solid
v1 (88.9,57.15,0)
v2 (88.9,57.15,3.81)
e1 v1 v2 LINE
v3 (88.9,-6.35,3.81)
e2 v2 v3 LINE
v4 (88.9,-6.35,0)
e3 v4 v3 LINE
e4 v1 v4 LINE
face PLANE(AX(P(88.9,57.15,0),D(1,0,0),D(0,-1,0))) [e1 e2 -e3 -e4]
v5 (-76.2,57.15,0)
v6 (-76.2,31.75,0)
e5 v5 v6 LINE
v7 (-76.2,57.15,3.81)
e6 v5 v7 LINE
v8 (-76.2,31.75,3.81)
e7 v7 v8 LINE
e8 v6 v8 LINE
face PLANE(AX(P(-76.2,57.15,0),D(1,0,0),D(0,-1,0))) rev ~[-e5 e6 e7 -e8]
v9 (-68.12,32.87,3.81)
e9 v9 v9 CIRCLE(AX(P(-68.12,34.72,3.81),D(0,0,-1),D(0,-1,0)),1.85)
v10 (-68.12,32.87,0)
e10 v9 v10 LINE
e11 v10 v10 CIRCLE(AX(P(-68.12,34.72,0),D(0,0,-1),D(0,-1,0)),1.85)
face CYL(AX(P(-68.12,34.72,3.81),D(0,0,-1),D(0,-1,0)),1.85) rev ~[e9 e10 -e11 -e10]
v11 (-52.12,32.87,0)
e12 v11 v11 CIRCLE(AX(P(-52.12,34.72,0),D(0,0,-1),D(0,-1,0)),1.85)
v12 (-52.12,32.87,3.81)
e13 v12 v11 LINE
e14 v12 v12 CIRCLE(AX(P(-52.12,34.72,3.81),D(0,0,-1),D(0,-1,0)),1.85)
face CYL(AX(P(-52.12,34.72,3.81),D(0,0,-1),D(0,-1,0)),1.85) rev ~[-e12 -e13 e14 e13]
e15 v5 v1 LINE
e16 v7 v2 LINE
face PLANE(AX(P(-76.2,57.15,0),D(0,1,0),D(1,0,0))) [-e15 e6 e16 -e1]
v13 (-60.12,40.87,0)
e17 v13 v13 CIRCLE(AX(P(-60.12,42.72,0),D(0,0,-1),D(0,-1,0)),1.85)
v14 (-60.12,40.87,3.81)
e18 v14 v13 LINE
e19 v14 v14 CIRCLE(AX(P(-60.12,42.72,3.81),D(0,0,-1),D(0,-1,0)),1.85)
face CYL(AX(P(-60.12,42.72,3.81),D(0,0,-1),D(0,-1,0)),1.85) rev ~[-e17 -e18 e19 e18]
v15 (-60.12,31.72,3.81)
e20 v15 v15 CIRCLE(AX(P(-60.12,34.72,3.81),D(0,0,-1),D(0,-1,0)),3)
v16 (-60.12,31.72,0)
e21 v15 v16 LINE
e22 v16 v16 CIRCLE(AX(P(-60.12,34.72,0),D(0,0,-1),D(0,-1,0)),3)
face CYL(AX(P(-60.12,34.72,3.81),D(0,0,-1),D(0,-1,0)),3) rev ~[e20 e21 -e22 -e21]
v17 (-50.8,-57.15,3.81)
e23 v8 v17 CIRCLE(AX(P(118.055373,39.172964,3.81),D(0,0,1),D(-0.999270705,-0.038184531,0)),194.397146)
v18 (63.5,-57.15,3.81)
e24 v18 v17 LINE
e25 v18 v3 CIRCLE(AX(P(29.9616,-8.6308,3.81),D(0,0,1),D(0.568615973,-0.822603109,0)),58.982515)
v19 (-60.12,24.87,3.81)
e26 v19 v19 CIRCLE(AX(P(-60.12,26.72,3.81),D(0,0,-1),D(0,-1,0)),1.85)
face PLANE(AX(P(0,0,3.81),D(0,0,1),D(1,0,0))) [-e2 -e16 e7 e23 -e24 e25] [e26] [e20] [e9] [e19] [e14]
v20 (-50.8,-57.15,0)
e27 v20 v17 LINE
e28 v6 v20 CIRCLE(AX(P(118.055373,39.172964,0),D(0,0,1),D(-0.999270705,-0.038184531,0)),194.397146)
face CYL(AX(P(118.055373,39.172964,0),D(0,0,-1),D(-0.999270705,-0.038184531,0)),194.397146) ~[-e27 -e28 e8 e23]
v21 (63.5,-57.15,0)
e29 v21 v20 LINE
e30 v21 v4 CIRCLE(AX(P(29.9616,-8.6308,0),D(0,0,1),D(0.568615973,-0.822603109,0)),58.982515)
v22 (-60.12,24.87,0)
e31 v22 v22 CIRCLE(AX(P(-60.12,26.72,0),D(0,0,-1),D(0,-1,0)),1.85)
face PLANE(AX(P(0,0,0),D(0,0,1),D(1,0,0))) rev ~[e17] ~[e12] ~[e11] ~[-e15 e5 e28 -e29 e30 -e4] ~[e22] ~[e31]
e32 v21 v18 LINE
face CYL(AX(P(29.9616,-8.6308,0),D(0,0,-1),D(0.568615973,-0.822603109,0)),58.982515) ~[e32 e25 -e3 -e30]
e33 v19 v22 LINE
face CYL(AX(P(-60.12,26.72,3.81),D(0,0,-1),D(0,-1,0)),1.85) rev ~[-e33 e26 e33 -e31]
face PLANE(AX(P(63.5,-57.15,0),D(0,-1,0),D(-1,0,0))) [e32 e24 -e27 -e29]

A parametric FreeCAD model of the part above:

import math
import FreeCAD as App
import Part
import Sketcher

V = App.Vector
Q = App.Units.Quantity

doc = App.newDocument("Part")
params = doc.addObject("Spreadsheet::Sheet", "Params")
for row, (alias, value) in enumerate([
    ("sketch1_height", "1 in"),
    ("sketch1_width", "6.5 in"),
    ("sketch1_width2", "4.5 in"),
    ("pad1_length", "0.15 in"),
    ("hole_diameter", "3.7 mm"),
    ("hole2_diameter", "6 mm"),
], start=1):
    params.set(f"A{row}", alias)
    params.set(f"B{row}", "=" + value)
    params.setAlias(f"B{row}", alias)

body = doc.addObject("PartDesign::Body", "Body")

sketch1 = doc.addObject("Sketcher::SketchObject", "Sketch")
body.addObject(sketch1)
sketch1.AttachmentSupport = (doc.XY_Plane, [""])
sketch1.MapMode = "FlatFace"
sketch1.addGeometry([
    Part.LineSegment(V(88.9, 57.15, 0), V(-76.2, 57.15, 0)),
    Part.LineSegment(V(-76.2, 57.15, 0), V(-76.2, 31.75, 0)),
    Part.ArcOfCircle(Part.Circle(V(118.0556, 39.173, 0), V(0, 0, 1), 194.397374), math.radians(-177.811647), math.radians(-150.297576)),
    Part.LineSegment(V(-50.8, -57.15, 0), V(63.5, -57.15, 0)),
    Part.ArcOfCircle(Part.Circle(V(29.9616, -8.6308, 0), V(0, 0, 1), 58.982515), math.radians(-55.34623), math.radians(2.216128)),
    Part.LineSegment(V(88.9, -6.35, 0), V(88.9, 57.15, 0)),
], False)
sketch1.addConstraint([
    Sketcher.Constraint("Coincident", 0, 2, 1, 1),
    Sketcher.Constraint("Coincident", 1, 2, 2, 1),
    Sketcher.Constraint("Coincident", 2, 2, 3, 1),
    Sketcher.Constraint("Coincident", 3, 2, 4, 1),
    Sketcher.Constraint("Coincident", 4, 2, 5, 1),
    Sketcher.Constraint("Coincident", 5, 2, 0, 1),
    Sketcher.Constraint("Horizontal", 0),
    Sketcher.Constraint("Vertical", 1),
    Sketcher.Constraint("Horizontal", 3),
    Sketcher.Constraint("Vertical", 5),
    Sketcher.Constraint("DistanceY", 1, 2, 1, 1, Q("1 in")),
    Sketcher.Constraint("DistanceX", 0, 2, 0, 1, Q("6.5 in")),
    Sketcher.Constraint("DistanceX", 3, 1, 3, 2, Q("4.5 in")),
    Sketcher.Constraint("DistanceX", 2, 2, -1, 1, Q("2 in")),
    Sketcher.Constraint("DistanceX", 1, 2, 2, 2, Q("1 in")),
    Sketcher.Constraint("DistanceY", 3, 2, 4, 2, Q("2 in")),
    Sketcher.Constraint("DistanceY", 2, 2, 0, 2, Q("4.5 in")),
    Sketcher.Constraint("DistanceY", -1, 1, 0, 2, Q("2.25 in")),
    Sketcher.Constraint("Radius", 2, Q("194.3974 mm")),
    Sketcher.Constraint("Radius", 4, Q("58.9825 mm")),
])
sketch1.setExpression("Constraints[10]", "Params.sketch1_height")
sketch1.setExpression("Constraints[11]", "Params.sketch1_width")
sketch1.setExpression("Constraints[12]", "Params.sketch1_width2")
pad1 = doc.addObject("PartDesign::Pad", "Pad")
body.addObject(pad1)
pad1.Profile = sketch1
pad1.setExpression("Length", "Params.pad1_length")

sketch2 = doc.addObject("Sketcher::SketchObject", "Sketch001")
body.addObject(sketch2)
sketch2.AttachmentSupport = (doc.XY_Plane, [""])
sketch2.MapMode = "FlatFace"
sketch2.AttachmentOffset = App.Placement(V(0, 0, 0.15 * 25.4), App.Rotation())
sketch2.addGeometry([
    Part.Circle(V(-60.12, 42.72, 0), V(0, 0, 1), 1.85),
    Part.Circle(V(-68.12, 34.72, 0), V(0, 0, 1), 1.85),
    Part.Circle(V(-60.12, 26.72, 0), V(0, 0, 1), 1.85),
    Part.Circle(V(-52.12, 34.72, 0), V(0, 0, 1), 1.85),
], False)
sketch2.addConstraint([
    Sketcher.Constraint("Equal", 0, 1),
    Sketcher.Constraint("Equal", 1, 2),
    Sketcher.Constraint("Equal", 2, 3),
    Sketcher.Constraint("Horizontal", 1, 3, 3, 3),
    Sketcher.Constraint("Vertical", 0, 3, 2, 3),
    Sketcher.Constraint("Diameter", 0, Q("3.7 mm")),
    Sketcher.Constraint("DistanceY", -1, 1, 0, 3, Q("1.6819 in")),
    Sketcher.Constraint("DistanceX", 1, 3, -1, 1, Q("2.6819 in")),
    Sketcher.Constraint("DistanceX", 0, 3, -1, 1, Q("60.12 mm")),
    Sketcher.Constraint("DistanceY", -1, 1, 1, 3, Q("34.72 mm")),
    Sketcher.Constraint("DistanceY", -1, 1, 2, 3, Q("26.72 mm")),
    Sketcher.Constraint("DistanceX", 3, 3, -1, 1, Q("52.12 mm")),
])
doc.recompute()
hole = doc.addObject("PartDesign::Hole", "Hole")
body.addObject(hole)
hole.Profile = sketch2
hole.ThreadType = "None"
hole.setExpression("Diameter", "Params.hole_diameter")
hole.DepthType = "ThroughAll"

sketch3 = doc.addObject("Sketcher::SketchObject", "Sketch002")
body.addObject(sketch3)
sketch3.AttachmentSupport = (doc.XY_Plane, [""])
sketch3.MapMode = "FlatFace"
sketch3.AttachmentOffset = App.Placement(V(0, 0, 0.15 * 25.4), App.Rotation())
sketch3.addGeometry(Part.Circle(V(-60.12, 34.72, 0), V(0, 0, 1), 3), False)
sketch3.addConstraint([
    Sketcher.Constraint("Diameter", 0, Q("6 mm")),
    Sketcher.Constraint("DistanceX", 0, 3, -1, 1, Q("60.12 mm")),
    Sketcher.Constraint("DistanceY", -1, 1, 0, 3, Q("34.72 mm")),
])
doc.recompute()
hole2 = doc.addObject("PartDesign::Hole", "Hole001")
body.addObject(hole2)
hole2.Profile = sketch3
hole2.ThreadType = "None"
hole2.setExpression("Diameter", "Params.hole2_diameter")
hole2.DepthType = "ThroughAll"

doc.recompute()
